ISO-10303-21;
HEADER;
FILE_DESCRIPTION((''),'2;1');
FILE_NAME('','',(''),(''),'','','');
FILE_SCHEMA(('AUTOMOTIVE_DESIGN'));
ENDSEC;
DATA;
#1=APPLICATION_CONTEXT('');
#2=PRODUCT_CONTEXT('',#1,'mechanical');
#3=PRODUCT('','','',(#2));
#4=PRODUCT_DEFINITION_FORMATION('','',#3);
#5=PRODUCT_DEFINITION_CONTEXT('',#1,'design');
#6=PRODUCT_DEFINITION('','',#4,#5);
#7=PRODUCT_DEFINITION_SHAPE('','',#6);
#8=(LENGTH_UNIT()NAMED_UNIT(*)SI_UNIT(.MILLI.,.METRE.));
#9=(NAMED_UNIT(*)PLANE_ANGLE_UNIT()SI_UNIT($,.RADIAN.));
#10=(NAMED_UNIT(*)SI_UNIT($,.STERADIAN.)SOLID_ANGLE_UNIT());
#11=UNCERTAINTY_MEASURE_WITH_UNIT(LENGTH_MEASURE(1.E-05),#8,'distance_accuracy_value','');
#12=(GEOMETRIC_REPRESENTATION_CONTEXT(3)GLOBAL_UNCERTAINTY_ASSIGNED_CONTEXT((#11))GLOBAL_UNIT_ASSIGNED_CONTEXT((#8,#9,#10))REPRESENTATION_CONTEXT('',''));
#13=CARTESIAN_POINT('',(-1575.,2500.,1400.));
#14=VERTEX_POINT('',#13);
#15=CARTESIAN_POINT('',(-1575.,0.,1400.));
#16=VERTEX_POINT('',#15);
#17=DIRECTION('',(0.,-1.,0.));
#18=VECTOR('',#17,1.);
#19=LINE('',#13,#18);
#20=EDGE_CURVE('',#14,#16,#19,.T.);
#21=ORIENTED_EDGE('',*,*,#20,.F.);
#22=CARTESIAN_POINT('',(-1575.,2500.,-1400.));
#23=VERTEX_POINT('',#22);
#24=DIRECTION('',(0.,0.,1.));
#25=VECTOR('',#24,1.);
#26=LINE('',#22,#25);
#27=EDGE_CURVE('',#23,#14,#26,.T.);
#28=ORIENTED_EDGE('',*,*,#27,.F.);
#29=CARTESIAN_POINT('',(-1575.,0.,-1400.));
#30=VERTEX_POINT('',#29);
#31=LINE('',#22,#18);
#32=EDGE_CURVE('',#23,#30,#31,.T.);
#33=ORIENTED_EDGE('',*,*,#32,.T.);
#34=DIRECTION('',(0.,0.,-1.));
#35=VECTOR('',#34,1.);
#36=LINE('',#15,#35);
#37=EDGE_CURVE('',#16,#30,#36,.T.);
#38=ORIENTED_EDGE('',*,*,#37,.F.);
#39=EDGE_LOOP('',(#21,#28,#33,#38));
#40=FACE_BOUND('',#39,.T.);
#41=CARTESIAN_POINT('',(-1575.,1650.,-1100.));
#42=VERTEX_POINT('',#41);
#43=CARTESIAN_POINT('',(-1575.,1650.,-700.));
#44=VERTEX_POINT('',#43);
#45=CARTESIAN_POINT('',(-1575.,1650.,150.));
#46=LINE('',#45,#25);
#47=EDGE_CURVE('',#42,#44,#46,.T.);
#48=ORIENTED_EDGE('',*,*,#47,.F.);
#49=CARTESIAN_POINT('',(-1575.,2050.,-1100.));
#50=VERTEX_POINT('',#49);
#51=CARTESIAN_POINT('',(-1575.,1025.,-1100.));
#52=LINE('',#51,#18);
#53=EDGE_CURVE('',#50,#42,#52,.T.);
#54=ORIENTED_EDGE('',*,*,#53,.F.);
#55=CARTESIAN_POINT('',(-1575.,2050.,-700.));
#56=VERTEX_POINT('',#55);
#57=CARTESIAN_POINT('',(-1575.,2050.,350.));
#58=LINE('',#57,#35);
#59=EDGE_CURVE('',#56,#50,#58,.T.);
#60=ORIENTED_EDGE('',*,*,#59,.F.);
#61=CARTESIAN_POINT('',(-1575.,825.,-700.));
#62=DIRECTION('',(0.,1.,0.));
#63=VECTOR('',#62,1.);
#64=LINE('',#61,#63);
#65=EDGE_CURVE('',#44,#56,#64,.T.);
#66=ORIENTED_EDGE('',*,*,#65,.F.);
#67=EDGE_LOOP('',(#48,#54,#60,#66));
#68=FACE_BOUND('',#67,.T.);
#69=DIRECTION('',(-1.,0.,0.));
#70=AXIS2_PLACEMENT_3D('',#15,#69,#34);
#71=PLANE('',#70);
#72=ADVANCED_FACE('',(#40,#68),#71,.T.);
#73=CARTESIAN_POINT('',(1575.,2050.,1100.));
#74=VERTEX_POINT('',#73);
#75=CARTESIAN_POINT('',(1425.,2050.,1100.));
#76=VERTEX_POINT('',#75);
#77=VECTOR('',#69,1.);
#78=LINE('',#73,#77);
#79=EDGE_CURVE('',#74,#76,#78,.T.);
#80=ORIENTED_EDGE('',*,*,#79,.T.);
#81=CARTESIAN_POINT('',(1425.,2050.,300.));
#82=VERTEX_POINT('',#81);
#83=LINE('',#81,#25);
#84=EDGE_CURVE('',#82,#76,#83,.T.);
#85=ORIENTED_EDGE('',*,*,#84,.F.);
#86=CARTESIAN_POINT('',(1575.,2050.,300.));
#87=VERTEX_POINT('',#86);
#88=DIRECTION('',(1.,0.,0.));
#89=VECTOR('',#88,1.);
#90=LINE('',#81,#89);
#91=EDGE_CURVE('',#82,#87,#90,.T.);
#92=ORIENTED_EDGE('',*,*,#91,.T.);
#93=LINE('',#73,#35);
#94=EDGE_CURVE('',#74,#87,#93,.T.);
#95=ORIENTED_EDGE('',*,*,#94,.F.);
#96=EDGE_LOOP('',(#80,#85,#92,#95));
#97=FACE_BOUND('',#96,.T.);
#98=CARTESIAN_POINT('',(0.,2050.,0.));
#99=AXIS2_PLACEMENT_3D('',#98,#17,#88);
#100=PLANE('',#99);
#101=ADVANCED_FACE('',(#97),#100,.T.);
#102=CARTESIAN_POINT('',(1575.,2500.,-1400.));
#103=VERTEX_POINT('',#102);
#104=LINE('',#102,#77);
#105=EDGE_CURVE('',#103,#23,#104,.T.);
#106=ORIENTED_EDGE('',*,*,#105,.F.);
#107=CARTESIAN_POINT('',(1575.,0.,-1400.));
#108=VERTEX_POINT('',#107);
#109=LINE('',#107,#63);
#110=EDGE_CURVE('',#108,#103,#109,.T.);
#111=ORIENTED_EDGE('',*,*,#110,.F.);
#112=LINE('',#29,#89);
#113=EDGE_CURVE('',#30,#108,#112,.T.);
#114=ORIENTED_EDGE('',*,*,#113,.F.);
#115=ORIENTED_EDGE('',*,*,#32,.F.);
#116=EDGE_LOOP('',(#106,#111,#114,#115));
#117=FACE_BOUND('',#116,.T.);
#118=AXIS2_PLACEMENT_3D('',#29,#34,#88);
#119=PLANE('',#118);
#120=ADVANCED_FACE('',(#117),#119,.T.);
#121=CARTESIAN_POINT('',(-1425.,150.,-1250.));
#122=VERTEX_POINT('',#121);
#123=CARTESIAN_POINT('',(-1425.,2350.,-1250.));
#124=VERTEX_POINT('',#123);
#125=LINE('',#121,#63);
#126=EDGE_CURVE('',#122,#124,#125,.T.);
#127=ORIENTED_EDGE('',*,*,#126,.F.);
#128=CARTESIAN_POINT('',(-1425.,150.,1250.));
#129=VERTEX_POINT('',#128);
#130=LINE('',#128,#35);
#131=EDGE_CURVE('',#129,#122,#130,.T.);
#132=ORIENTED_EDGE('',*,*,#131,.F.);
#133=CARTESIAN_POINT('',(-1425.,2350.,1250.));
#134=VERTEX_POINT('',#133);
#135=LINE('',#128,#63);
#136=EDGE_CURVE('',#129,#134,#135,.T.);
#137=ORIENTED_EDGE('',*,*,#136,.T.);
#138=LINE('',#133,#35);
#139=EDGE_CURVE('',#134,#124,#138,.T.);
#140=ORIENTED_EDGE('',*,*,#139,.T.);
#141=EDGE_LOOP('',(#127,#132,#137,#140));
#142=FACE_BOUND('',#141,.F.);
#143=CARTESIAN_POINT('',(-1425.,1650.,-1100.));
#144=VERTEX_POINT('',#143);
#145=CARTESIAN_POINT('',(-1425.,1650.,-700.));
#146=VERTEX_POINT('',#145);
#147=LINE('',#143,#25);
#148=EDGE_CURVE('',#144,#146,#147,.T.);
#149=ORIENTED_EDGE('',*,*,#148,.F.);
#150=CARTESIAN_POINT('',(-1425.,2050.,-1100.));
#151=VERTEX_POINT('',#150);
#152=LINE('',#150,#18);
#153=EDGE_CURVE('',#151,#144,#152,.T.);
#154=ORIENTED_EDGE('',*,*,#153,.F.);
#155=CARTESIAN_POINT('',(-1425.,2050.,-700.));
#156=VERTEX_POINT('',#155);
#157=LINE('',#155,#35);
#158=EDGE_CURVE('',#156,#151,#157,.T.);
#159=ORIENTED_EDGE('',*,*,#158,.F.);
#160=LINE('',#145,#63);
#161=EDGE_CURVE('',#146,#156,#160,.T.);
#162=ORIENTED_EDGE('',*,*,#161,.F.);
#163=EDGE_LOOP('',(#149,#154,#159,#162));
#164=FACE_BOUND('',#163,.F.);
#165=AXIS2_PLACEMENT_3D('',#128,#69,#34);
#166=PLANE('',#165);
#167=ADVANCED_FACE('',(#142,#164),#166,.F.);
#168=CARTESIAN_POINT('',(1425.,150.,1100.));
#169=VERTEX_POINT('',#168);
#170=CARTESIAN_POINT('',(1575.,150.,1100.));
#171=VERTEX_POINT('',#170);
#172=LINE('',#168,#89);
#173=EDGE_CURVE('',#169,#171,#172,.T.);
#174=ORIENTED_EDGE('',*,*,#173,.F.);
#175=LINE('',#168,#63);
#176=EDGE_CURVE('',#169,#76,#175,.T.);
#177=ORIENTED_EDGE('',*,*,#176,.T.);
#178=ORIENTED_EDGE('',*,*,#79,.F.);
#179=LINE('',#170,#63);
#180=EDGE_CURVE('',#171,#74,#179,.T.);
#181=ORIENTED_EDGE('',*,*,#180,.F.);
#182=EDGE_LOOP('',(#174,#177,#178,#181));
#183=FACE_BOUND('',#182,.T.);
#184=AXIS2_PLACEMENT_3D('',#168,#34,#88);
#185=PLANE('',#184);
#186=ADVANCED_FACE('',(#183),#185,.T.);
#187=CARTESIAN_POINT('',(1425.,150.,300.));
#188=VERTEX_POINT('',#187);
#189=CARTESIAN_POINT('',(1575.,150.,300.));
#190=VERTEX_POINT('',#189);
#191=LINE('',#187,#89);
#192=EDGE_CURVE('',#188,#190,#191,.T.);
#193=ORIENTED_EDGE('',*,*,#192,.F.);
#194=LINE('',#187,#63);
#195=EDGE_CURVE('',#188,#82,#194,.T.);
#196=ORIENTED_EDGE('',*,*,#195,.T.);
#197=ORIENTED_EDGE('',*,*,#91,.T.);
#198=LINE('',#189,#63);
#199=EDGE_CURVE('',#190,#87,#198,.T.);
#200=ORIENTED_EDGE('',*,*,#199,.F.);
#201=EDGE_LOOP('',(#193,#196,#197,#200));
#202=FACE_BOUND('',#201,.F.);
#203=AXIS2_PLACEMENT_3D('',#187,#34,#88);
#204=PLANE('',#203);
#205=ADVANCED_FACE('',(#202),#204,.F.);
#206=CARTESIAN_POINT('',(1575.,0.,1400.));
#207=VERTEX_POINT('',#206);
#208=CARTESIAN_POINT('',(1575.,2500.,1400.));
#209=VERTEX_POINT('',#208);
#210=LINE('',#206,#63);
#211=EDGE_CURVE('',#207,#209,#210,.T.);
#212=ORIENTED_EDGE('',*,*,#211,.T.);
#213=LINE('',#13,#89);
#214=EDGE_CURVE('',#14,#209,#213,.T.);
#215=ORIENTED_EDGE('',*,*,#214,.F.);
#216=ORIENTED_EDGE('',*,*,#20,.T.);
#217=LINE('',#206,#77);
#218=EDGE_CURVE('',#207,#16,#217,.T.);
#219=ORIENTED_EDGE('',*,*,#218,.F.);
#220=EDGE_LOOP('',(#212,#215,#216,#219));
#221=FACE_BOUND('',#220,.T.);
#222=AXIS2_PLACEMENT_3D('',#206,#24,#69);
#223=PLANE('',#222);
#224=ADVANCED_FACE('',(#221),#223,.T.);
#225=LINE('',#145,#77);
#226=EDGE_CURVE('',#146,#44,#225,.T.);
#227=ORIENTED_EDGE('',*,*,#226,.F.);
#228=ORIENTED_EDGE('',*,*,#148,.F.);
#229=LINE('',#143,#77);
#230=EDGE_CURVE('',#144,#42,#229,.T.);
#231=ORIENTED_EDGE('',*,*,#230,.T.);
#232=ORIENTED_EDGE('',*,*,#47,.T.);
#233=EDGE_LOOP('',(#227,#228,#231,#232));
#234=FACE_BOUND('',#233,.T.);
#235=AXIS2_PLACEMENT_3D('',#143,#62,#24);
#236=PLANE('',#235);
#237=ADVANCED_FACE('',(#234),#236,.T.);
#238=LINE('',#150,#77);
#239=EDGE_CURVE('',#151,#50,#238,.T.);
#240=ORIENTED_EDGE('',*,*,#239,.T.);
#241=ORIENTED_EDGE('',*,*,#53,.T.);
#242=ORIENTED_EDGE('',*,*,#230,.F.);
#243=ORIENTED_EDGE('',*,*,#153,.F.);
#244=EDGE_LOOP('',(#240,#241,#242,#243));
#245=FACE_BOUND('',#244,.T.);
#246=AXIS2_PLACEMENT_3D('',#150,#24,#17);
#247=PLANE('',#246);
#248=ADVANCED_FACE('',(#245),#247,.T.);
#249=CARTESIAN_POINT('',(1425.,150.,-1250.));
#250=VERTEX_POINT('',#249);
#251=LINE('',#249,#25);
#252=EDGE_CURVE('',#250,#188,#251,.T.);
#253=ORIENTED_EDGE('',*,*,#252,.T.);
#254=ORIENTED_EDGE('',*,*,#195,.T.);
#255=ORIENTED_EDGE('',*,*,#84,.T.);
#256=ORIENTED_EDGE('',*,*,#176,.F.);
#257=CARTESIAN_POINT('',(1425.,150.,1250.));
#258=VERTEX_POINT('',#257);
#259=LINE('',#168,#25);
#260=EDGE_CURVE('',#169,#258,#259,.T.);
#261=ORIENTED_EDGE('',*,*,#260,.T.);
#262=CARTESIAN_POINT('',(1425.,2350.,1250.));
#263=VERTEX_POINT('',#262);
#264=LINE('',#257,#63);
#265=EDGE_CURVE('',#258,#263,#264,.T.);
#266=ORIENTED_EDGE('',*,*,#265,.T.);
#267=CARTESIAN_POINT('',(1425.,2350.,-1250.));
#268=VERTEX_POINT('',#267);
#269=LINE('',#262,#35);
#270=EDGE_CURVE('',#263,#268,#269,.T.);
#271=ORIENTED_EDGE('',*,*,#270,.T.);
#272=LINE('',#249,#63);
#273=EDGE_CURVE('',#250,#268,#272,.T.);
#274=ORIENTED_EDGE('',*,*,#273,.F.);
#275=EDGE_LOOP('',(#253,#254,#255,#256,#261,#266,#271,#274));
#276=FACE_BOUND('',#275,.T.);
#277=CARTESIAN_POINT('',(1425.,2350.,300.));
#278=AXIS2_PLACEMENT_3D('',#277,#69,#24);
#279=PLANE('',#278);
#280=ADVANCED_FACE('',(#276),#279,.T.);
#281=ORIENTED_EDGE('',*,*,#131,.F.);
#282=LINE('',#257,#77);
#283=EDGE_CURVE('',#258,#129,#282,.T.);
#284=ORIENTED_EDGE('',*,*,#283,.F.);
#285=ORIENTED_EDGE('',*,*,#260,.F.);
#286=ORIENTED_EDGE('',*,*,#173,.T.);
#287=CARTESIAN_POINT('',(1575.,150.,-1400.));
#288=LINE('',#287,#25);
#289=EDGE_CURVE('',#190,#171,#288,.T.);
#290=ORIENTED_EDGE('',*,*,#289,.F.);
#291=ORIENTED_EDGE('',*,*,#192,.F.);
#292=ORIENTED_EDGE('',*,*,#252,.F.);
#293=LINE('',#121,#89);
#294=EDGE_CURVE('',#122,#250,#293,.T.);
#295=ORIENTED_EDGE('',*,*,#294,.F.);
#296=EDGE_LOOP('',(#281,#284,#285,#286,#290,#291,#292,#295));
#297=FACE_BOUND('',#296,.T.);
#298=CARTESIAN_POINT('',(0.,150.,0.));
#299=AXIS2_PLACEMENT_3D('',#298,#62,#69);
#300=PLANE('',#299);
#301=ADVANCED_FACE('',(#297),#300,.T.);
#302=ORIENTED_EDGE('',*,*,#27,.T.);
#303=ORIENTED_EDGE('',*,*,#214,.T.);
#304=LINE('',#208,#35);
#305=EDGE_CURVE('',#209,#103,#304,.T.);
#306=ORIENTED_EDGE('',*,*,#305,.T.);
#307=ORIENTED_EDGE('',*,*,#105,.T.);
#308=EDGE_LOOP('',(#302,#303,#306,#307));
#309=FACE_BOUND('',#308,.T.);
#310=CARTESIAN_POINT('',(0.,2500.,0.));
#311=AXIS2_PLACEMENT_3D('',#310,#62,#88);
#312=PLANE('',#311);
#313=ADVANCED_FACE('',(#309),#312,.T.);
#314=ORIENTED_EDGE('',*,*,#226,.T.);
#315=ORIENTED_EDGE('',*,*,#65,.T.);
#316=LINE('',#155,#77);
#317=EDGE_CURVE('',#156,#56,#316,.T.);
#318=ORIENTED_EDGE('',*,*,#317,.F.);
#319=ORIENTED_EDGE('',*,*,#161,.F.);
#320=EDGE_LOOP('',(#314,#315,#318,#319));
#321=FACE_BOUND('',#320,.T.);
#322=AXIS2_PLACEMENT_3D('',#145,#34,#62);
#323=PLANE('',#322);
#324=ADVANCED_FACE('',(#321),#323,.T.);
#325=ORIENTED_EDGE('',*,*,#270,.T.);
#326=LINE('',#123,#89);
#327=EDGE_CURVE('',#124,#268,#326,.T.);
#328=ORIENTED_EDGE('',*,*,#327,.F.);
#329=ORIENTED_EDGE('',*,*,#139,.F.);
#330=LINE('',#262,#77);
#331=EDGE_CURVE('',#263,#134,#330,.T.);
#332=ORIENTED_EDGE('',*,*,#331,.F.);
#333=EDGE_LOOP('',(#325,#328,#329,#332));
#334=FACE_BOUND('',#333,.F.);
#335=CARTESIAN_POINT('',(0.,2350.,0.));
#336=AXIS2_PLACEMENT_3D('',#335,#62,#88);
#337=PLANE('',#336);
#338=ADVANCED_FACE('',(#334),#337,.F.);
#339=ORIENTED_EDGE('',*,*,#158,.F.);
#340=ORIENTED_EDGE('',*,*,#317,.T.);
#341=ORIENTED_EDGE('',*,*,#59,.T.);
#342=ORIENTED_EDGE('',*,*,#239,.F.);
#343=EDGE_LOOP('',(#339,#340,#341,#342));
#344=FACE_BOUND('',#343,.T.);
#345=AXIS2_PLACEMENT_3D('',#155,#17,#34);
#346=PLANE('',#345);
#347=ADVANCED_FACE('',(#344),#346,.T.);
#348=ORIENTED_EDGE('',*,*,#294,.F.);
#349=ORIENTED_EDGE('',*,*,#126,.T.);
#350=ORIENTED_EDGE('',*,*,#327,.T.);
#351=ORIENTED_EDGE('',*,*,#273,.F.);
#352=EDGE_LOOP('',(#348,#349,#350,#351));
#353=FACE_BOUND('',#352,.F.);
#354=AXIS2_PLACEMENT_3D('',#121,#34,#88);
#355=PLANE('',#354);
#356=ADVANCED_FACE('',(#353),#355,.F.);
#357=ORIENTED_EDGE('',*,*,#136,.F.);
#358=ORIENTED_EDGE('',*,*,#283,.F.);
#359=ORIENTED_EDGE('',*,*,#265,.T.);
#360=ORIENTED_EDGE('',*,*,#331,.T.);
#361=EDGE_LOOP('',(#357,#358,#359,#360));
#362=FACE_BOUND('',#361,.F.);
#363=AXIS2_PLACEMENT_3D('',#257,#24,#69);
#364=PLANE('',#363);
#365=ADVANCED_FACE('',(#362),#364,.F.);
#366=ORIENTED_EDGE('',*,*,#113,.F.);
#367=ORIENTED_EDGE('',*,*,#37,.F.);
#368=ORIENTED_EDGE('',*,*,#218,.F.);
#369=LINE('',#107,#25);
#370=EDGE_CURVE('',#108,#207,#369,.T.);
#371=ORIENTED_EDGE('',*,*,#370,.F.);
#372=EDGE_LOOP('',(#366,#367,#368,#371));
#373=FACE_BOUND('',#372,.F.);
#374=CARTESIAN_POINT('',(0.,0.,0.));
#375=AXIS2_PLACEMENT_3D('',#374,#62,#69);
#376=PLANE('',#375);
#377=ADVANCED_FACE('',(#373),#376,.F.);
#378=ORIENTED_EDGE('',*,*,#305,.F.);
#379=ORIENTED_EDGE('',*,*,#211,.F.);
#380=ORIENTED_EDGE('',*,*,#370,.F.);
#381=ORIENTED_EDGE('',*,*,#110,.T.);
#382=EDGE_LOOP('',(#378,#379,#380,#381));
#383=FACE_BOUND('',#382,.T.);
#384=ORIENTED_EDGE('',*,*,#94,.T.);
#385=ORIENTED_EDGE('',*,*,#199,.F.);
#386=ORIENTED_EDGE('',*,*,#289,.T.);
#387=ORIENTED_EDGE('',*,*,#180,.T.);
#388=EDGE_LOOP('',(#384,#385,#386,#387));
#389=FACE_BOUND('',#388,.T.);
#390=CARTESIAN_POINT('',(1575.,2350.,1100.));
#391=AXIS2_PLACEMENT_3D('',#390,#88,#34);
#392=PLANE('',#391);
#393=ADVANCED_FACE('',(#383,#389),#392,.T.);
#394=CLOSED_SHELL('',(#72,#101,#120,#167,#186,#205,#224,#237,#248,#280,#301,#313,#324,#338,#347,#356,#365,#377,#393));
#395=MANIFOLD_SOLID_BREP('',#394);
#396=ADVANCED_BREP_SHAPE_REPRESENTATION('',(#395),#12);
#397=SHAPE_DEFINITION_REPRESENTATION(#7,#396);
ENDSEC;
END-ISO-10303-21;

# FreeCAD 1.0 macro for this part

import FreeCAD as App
import Part
import Sketcher

V = App.Vector


def add_polygon(sketch, points):
    """Adds a closed chain of lines whose ends are joined by coincident constraints."""
    first, n = sketch.GeometryCount, len(points)
    for a, b in zip(points, points[1:] + points[:1]):
        sketch.addGeometry(Part.LineSegment(App.Vector(*a, 0), App.Vector(*b, 0)), False)
    for i in range(n):
        sketch.addConstraint(Sketcher.Constraint("Coincident", first + i, 2, first + (i + 1) % n, 1))

doc = App.newDocument("Part")
body = doc.addObject("PartDesign::Body", "Body")

sketch1 = body.newObject("Sketcher::SketchObject", "Sketch")
sketch1.AttachmentSupport = (doc.getObject("XZ_Plane"), [""])
sketch1.MapMode = "FlatFace"
add_polygon(sketch1, [(-1575, 1400), (1575, 1400), (1575, -1400), (-1575, -1400)])
sketch1.addConstraint([
    Sketcher.Constraint("Horizontal", 0),
    Sketcher.Constraint("Vertical", 1),
    Sketcher.Constraint("Horizontal", 2),
    Sketcher.Constraint("Vertical", 3),
    Sketcher.Constraint("Symmetric", 0, 2, 2, 2, -1, 1),
    Sketcher.Constraint("DistanceX", 0, 1, 0, 2, 3150.0),
    Sketcher.Constraint("DistanceY", 1, 2, 1, 1, 2800.0),
])
pad1 = body.newObject("PartDesign::Pad", "Pad")
pad1.Profile = sketch1
pad1.Length = 150
pad1.Reversed = True

sketch2 = body.newObject("Sketcher::SketchObject", "Sketch001")
sketch2.AttachmentSupport = (doc.getObject("XZ_Plane"), [""])
sketch2.MapMode = "FlatFace"
sketch2.AttachmentOffset = App.Placement(V(0, 0, -150), App.Rotation())
add_polygon(sketch2, [(-1575, -1400), (-1575, 1400), (1575, 1400), (1575, 1100), (1425, 1100), (1425, 1250), (-1425, 1250), (-1425, -1250), (1425, -1250), (1425, 300), (1575, 300), (1575, -1400)])
sketch2.addConstraint([
    Sketcher.Constraint("Vertical", 0),
    Sketcher.Constraint("Horizontal", 1),
    Sketcher.Constraint("Vertical", 2),
    Sketcher.Constraint("Horizontal", 3),
    Sketcher.Constraint("Vertical", 4),
    Sketcher.Constraint("Horizontal", 5),
    Sketcher.Constraint("Vertical", 6),
    Sketcher.Constraint("Horizontal", 7),
    Sketcher.Constraint("Vertical", 8),
    Sketcher.Constraint("Horizontal", 9),
    Sketcher.Constraint("Vertical", 10),
    Sketcher.Constraint("Horizontal", 11),
    Sketcher.Constraint("Symmetric", 4, 2, 6, 2, -1, 1),
    Sketcher.Constraint("Symmetric", 0, 2, 10, 2, -1, 1),
    Sketcher.Constraint("Vertical", 4, 2, 7, 2),
    Sketcher.Constraint("Vertical", 2, 2, 9, 2),
    Sketcher.Constraint("Equal", 9, 4),
    Sketcher.Constraint("DistanceX", 3, 2, 3, 1, 150.0),
    Sketcher.Constraint("DistanceX", 5, 2, 5, 1, 2850.0),
    Sketcher.Constraint("DistanceY", 6, 2, 6, 1, 2500.0),
    Sketcher.Constraint("DistanceY", 4, 2, 1, 2, 150.0),
    Sketcher.Constraint("DistanceY", 8, 2, 3, 2, 800.0),
])
pad2 = body.newObject("PartDesign::Pad", "Pad001")
pad2.Profile = sketch2
pad2.Length = 2200
pad2.Reversed = True

sketch3 = body.newObject("Sketcher::SketchObject", "Sketch002")
sketch3.AttachmentSupport = (doc.getObject("XZ_Plane"), [""])
sketch3.MapMode = "FlatFace"
sketch3.AttachmentOffset = App.Placement(V(0, 0, -2350), App.Rotation())
add_polygon(sketch3, [(-1575, -1400), (-1575, 1400), (1575, 1400), (1575, -1400)])
sketch3.addConstraint([
    Sketcher.Constraint("Vertical", 0),
    Sketcher.Constraint("Horizontal", 1),
    Sketcher.Constraint("Vertical", 2),
    Sketcher.Constraint("Horizontal", 3),
    Sketcher.Constraint("Symmetric", 0, 2, 2, 2, -1, 1),
    Sketcher.Constraint("DistanceX", 1, 1, 1, 2, 3150.0),
    Sketcher.Constraint("DistanceY", 0, 1, 0, 2, 2800.0),
])
pad3 = body.newObject("PartDesign::Pad", "Pad002")
pad3.Profile = sketch3
pad3.Length = 150
pad3.Reversed = True

sketch4 = body.newObject("Sketcher::SketchObject", "Sketch003")
sketch4.AttachmentSupport = (doc.getObject("XZ_Plane"), [""])
sketch4.MapMode = "FlatFace"
sketch4.AttachmentOffset = App.Placement(V(0, 0, -2350), App.Rotation())
add_polygon(sketch4, [(1575, 300), (1575, 1100), (1425, 1100), (1425, 300)])
sketch4.addConstraint([
    Sketcher.Constraint("Vertical", 0),
    Sketcher.Constraint("Horizontal", 1),
    Sketcher.Constraint("Vertical", 2),
    Sketcher.Constraint("Horizontal", 3),
    Sketcher.Constraint("DistanceX", 1, 2, 1, 1, 150.0),
    Sketcher.Constraint("DistanceY", 0, 1, 0, 2, 800.0),
    Sketcher.Constraint("DistanceX", -1, 1, 0, 2, 1575.0),
    Sketcher.Constraint("DistanceY", -1, 1, 0, 2, 1100.0),
])
pad4 = body.newObject("PartDesign::Pad", "Pad003")
pad4.Profile = sketch4
pad4.Length = 300

sketch5 = body.newObject("Sketcher::SketchObject", "Sketch004")
sketch5.AttachmentSupport = (doc.getObject("YZ_Plane"), [""])
sketch5.MapMode = "FlatFace"
sketch5.AttachmentOffset = App.Placement(V(0, 0, -1425), App.Rotation())
add_polygon(sketch5, [(2050, -1100), (2050, -700), (1650, -700), (1650, -1100)])
sketch5.addConstraint([
    Sketcher.Constraint("Vertical", 0),
    Sketcher.Constraint("Horizontal", 1),
    Sketcher.Constraint("Vertical", 2),
    Sketcher.Constraint("Horizontal", 3),
    Sketcher.Constraint("Equal", 3, 0),
    Sketcher.Constraint("DistanceX", 1, 2, 1, 1, 400.0),
    Sketcher.Constraint("DistanceX", -1, 1, 0, 2, 2050.0),
    Sketcher.Constraint("DistanceY", 0, 2, -1, 1, 700.0),
])
pocket1 = body.newObject("PartDesign::Pocket", "Pocket")
pocket1.Profile = sketch5
pocket1.Type = "UpToFirst"

doc.recompute()
